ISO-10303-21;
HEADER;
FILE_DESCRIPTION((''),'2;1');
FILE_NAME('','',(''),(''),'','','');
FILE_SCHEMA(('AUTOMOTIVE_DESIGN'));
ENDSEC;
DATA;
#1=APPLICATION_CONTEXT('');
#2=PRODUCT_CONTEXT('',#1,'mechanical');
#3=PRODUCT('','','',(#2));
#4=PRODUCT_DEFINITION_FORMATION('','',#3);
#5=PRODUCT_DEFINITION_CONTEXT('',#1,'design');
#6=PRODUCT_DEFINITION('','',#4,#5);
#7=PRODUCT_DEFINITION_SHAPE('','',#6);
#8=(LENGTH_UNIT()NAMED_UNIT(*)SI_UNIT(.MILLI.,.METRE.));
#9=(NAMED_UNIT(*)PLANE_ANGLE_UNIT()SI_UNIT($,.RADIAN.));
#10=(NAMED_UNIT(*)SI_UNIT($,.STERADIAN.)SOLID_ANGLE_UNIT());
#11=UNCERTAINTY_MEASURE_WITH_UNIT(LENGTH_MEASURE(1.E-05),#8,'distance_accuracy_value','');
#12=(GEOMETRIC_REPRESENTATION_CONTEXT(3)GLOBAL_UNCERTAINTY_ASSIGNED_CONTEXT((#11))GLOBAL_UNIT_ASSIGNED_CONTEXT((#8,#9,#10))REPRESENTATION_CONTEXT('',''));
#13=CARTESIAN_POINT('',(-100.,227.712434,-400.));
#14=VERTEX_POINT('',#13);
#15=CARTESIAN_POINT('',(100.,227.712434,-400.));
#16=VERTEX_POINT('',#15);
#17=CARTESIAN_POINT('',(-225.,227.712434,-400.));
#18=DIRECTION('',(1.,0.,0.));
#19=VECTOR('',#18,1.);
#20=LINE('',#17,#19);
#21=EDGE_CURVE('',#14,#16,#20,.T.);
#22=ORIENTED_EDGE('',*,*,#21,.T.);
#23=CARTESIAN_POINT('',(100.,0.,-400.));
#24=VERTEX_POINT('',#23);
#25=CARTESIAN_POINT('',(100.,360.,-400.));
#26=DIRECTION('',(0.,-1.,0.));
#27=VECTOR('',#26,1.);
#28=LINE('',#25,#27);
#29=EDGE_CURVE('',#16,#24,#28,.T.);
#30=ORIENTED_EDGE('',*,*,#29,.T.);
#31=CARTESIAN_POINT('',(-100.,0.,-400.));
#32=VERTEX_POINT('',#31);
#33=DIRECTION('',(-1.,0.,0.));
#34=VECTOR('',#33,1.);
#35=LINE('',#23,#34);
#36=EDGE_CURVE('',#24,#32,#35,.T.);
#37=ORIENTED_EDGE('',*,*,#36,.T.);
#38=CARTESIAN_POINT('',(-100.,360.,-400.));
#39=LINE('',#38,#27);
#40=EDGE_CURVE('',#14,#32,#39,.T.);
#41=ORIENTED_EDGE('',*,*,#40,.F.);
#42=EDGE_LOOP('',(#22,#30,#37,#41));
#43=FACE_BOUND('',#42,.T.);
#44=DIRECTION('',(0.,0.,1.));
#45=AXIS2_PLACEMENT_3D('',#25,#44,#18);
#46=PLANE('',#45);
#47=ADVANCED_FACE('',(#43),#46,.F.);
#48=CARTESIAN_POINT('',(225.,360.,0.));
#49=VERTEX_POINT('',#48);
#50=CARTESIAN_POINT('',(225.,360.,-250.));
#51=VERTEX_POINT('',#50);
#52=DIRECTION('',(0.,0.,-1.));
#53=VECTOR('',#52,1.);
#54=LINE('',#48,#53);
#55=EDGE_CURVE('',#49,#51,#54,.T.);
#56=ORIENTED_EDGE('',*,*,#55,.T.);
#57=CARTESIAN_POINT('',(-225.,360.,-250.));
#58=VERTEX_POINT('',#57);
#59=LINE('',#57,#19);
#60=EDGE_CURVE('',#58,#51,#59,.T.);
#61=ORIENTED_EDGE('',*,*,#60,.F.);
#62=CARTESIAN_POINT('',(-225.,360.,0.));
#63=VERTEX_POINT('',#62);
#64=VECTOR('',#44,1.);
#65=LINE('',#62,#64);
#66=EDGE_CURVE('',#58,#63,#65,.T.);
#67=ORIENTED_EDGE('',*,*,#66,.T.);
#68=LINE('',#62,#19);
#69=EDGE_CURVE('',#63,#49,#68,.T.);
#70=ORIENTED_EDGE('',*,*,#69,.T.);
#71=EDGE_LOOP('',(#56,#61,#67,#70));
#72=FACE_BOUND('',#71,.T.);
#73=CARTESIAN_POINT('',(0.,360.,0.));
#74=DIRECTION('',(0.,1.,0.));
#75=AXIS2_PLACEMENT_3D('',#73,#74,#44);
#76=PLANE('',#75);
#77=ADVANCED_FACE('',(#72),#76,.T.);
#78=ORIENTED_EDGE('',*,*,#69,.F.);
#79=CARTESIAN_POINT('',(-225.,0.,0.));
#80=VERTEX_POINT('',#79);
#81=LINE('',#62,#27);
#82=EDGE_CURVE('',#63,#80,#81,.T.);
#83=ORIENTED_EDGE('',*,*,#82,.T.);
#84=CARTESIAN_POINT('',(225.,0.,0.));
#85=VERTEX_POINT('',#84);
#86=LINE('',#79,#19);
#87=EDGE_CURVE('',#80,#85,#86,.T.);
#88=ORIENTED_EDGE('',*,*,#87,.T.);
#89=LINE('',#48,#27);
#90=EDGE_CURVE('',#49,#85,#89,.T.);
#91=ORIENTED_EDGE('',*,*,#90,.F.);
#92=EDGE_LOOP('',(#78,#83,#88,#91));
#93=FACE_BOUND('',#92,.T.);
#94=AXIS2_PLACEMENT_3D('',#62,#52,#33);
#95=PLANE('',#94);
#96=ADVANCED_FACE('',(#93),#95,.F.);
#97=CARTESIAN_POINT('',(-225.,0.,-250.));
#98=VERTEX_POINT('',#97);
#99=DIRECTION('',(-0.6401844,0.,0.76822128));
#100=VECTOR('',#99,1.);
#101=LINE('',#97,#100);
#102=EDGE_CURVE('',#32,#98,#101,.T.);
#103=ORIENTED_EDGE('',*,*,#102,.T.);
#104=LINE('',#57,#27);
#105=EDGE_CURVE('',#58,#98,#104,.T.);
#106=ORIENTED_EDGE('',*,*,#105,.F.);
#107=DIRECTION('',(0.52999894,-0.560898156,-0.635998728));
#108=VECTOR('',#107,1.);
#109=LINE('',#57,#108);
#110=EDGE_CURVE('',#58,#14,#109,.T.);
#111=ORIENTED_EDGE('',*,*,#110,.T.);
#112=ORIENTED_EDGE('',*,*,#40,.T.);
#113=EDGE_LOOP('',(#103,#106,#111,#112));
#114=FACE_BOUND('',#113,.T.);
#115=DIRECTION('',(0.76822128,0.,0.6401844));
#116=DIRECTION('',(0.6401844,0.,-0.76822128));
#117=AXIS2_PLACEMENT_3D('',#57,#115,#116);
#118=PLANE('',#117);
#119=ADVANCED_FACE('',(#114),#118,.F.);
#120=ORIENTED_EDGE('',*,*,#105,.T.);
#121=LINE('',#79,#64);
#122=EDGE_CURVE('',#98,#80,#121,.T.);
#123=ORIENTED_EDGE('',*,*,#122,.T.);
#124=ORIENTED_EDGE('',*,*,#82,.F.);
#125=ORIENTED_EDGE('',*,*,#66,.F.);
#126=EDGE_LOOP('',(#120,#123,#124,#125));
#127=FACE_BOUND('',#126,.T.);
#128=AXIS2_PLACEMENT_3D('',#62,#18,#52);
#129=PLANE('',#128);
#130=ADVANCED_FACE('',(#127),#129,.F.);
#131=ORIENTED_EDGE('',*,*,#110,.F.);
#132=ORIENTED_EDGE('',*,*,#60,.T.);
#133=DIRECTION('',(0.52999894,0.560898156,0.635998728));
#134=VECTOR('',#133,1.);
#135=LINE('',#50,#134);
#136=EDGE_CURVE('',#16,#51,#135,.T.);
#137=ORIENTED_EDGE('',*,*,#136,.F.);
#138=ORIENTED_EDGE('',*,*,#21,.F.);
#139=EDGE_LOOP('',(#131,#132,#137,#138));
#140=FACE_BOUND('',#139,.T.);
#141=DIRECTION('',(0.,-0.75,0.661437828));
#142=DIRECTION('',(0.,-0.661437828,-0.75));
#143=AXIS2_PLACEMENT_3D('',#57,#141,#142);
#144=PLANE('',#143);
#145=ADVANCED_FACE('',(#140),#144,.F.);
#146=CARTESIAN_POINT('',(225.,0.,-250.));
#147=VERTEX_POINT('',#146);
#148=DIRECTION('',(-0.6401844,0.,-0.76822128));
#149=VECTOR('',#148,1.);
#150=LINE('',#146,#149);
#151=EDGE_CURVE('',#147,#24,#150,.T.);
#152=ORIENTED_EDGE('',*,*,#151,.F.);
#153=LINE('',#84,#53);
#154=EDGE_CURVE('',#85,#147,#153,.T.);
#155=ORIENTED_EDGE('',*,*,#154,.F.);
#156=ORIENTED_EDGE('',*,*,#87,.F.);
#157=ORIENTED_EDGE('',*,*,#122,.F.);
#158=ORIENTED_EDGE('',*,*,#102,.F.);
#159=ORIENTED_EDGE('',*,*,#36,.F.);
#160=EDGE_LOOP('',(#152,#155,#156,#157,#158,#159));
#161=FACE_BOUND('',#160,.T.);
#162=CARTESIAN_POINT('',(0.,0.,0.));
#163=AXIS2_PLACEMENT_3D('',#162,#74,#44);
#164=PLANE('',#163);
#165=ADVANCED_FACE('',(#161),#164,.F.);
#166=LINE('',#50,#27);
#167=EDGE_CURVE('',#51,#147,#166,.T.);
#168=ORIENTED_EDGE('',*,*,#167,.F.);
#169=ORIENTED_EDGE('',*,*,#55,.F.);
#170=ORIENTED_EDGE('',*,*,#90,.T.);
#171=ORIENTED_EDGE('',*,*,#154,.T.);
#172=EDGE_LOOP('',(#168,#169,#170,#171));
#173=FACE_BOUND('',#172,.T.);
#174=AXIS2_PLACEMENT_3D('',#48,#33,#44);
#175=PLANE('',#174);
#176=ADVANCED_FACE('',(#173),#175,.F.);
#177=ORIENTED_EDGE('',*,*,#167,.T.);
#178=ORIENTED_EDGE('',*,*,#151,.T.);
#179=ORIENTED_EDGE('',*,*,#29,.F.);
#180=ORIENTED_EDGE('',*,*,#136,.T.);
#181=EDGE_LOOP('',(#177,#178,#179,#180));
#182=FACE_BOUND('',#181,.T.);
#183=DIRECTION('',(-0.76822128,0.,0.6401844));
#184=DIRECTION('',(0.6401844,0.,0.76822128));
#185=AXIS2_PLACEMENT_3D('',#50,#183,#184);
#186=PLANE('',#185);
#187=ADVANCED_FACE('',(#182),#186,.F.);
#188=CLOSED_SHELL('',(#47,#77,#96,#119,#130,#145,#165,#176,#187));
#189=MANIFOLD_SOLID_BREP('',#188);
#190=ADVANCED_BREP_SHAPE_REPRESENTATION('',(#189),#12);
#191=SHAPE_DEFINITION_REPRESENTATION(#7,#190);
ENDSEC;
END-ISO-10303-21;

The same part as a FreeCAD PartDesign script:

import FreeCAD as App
import Part
import Sketcher

doc = App.newDocument("Part")
params = doc.addObject("Spreadsheet::Sheet", "Params")
for row, (alias, value) in enumerate([
    ("sketch1_width", "450 mm"),
    ("sketch1_width2", "200 mm"),
    ("sketch1_height", "250 mm"),
    ("pad1_length", "360 mm"),
    ("sketch2_height", "150 mm"),
    ("sketch2_length", "200 mm"),
], start=1):
    params.set(f"A{row}", alias)
    params.set(f"B{row}", "=" + value)
    params.setAlias(f"B{row}", alias)

body = doc.addObject("PartDesign::Body", "Body")

# Sketch on XZ plane
sketch1 = body.newObject("Sketcher::SketchObject", "Sketch")
sketch1.AttachmentSupport = (doc.getObject("XZ_Plane"), [""])
sketch1.MapMode = "FlatFace"
sketch1.addGeometry([
    Part.LineSegment(App.Vector(-225, 0, 0), App.Vector(225, 0, 0)),  # 0
    Part.LineSegment(App.Vector(225, 0, 0), App.Vector(225, -250, 0)),  # 1
    Part.LineSegment(App.Vector(225, -250, 0), App.Vector(100, -400, 0)),  # 2
    Part.LineSegment(App.Vector(100, -400, 0), App.Vector(-100, -400, 0)),  # 3
    Part.LineSegment(App.Vector(-100, -400, 0), App.Vector(-225, -250, 0)),  # 4
    Part.LineSegment(App.Vector(-225, -250, 0), App.Vector(-225, 0, 0)),  # 5
], False)
sketch1.addConstraint([
    Sketcher.Constraint("Coincident", 0, 2, 1, 1),
    Sketcher.Constraint("Coincident", 1, 2, 2, 1),
    Sketcher.Constraint("Coincident", 2, 2, 3, 1),
    Sketcher.Constraint("Coincident", 3, 2, 4, 1),
    Sketcher.Constraint("Coincident", 4, 2, 5, 1),
    Sketcher.Constraint("Coincident", 5, 2, 0, 1),
    Sketcher.Constraint("Horizontal", 0),
    Sketcher.Constraint("Vertical", 1),
    Sketcher.Constraint("Horizontal", 3),
    Sketcher.Constraint("Vertical", 5),
    Sketcher.Constraint("Symmetric", 0, 2, 5, 2, -1, 1),
    Sketcher.Constraint("Horizontal", 1, 2, 4, 2),
    Sketcher.Constraint("Equal", 2, 4),
    Sketcher.Constraint("DistanceX", 0, 1, 0, 2, 450.0),
    Sketcher.Constraint("DistanceX", 3, 2, 3, 1, 200.0),
    Sketcher.Constraint("DistanceY", 1, 2, 1, 1, 250.0),
    Sketcher.Constraint("DistanceY", 2, 2, -1, 1, 400.0),
])
sketch1.setExpression("Constraints[13]", "Params.sketch1_width")
sketch1.setExpression("Constraints[14]", "Params.sketch1_width2")
sketch1.setExpression("Constraints[15]", "Params.sketch1_height")
pad1 = body.newObject("PartDesign::Pad", "Pad")
pad1.Profile = sketch1
pad1.setExpression("Length", "Params.pad1_length")
pad1.Reversed = True

# Sketch on YZ plane
sketch2 = body.newObject("Sketcher::SketchObject", "Sketch001")
sketch2.AttachmentSupport = (doc.getObject("YZ_Plane"), [""])
sketch2.MapMode = "FlatFace"
sketch2.AttachmentOffset = App.Placement(App.Vector(0, 0, 225), App.Rotation())
sketch2.addGeometry([
    Part.LineSegment(App.Vector(360, -250, 0), App.Vector(228, -400, 0)),
    Part.LineSegment(App.Vector(228, -400, 0), App.Vector(360, -400, 0)),
    Part.LineSegment(App.Vector(360, -400, 0), App.Vector(360, -250, 0)),
], False)
sketch2.addConstraint([
    Sketcher.Constraint("Coincident", 0, 2, 1, 1),
    Sketcher.Constraint("Coincident", 1, 2, 2, 1),
    Sketcher.Constraint("Coincident", 2, 2, 0, 1),
    Sketcher.Constraint("Horizontal", 1),
    Sketcher.Constraint("Vertical", 2),
    Sketcher.Constraint("DistanceY", 2, 1, 2, 2, 150.0),
    Sketcher.Constraint("Distance", 0, 200.0),
    Sketcher.Constraint("DistanceY", 0, 2, -1, 1, 400.0),
    Sketcher.Constraint("DistanceX", -1, 1, 1, 2, 360.0),
])
sketch2.setExpression("Constraints[5]", "Params.sketch2_height")
sketch2.setExpression("Constraints[6]", "Params.sketch2_length")
pocket1 = body.newObject("PartDesign::Pocket", "Pocket")
pocket1.Profile = sketch2
pocket1.Type = "ThroughAll"

doc.recompute()
